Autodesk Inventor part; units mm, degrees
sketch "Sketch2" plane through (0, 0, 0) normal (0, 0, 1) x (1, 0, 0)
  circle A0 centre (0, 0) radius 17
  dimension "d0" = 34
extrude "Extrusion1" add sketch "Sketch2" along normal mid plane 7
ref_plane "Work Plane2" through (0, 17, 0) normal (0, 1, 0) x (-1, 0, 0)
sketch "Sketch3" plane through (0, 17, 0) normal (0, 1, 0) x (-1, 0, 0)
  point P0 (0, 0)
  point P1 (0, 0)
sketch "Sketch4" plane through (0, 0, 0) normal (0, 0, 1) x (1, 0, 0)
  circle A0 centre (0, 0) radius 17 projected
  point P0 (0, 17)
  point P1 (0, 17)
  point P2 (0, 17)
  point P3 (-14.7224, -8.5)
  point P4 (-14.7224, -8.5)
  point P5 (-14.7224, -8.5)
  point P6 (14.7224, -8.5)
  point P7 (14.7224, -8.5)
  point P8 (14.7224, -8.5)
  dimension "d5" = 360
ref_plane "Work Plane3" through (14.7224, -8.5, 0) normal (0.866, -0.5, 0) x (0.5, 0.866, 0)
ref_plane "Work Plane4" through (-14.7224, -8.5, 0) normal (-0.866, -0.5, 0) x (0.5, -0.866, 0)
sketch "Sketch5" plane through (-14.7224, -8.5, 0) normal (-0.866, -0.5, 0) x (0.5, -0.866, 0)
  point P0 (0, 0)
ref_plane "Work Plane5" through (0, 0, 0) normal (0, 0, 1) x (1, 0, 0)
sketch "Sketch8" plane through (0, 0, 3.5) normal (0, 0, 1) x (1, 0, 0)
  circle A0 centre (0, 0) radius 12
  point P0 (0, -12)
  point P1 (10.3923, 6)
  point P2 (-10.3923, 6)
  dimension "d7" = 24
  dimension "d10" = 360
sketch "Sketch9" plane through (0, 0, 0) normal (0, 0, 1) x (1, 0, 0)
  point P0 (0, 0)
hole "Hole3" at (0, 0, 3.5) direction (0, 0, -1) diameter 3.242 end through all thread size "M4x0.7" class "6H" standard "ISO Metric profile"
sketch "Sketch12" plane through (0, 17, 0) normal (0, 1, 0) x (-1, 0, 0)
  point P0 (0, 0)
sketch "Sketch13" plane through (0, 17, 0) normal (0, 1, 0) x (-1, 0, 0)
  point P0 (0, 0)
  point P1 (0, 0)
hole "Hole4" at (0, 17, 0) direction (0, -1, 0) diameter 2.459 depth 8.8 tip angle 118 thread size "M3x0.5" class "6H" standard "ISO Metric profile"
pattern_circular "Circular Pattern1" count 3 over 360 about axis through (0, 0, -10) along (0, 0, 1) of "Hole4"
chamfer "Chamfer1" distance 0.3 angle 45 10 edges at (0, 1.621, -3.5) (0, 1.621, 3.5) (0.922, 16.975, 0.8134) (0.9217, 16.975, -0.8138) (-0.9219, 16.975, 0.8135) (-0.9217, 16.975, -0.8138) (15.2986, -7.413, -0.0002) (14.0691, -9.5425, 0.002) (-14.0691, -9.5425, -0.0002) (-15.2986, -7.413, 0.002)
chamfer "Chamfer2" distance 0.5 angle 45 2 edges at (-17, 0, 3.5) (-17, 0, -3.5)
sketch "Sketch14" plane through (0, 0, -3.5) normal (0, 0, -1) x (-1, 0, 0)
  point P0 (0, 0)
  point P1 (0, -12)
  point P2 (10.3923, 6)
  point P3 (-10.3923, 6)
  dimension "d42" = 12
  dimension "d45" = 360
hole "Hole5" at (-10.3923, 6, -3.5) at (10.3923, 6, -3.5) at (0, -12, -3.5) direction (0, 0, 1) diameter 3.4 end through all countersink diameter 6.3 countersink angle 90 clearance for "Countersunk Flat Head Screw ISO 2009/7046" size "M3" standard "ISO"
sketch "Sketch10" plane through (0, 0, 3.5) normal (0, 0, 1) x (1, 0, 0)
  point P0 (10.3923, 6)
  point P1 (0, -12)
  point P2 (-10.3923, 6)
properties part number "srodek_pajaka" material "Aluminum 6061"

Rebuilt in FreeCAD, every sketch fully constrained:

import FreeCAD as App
import Part
import Sketcher
Q = App.Units.Quantity


def edges_at(feature, points):
    """Names of the edges that pass closest to the given points."""
    edges = feature.Shape.Edges
    near = lambda p: min(range(len(edges)), key=lambda i: edges[i].distToShape(Part.Vertex(*p))[0])
    return sorted({f"Edge{near(p) + 1}" for p in points})

doc = App.newDocument("Part")
body = doc.addObject("PartDesign::Body", "Body")

sketch1 = doc.addObject("Sketcher::SketchObject", "Sketch")
body.addObject(sketch1)
sketch1.AttachmentSupport = (doc.XY_Plane, [""])
sketch1.MapMode = "FlatFace"
sketch1.addGeometry(Part.Circle(App.Vector(0, 0, 0), App.Vector(0, 0, 1), 17), False)
sketch1.addConstraint([
    Sketcher.Constraint("Coincident", 0, 3, -1, 1),
    Sketcher.Constraint("Diameter", 0, Q("34 mm")),
])
pad1 = doc.addObject("PartDesign::Pad", "Pad")
body.addObject(pad1)
pad1.Profile = sketch1
pad1.Length = 7
pad1.Midplane = True

sketch2 = doc.addObject("Sketcher::SketchObject", "Sketch001")
body.addObject(sketch2)
sketch2.AttachmentSupport = (doc.XY_Plane, [""])
sketch2.MapMode = "FlatFace"
sketch2.AttachmentOffset = App.Placement(App.Vector(0, 0, 3.5), App.Rotation())
sketch2.addGeometry(Part.Circle(App.Vector(0, 0, 0), App.Vector(0, 0, 1), 1.6), False)
sketch2.addConstraint([
    Sketcher.Constraint("Coincident", 0, 3, -1, 1),
    Sketcher.Constraint("Diameter", 0, Q("3.242 mm")),
])
doc.recompute()
hole = doc.addObject("PartDesign::Hole", "Hole")
body.addObject(hole)
hole.Profile = sketch2
hole.ThreadType = "None"
hole.Diameter = 3.242
hole.DepthType = "ThroughAll"

sketch3 = doc.addObject("Sketcher::SketchObject", "Sketch002")
body.addObject(sketch3)
sketch3.AttachmentSupport = (doc.XZ_Plane, [""])
sketch3.MapMode = "FlatFace"
sketch3.AttachmentOffset = App.Placement(App.Vector(0, 0, -17), App.Rotation())
sketch3.addGeometry(Part.Circle(App.Vector(0, 0, 0), App.Vector(0, 0, 1), 1.2), False)
sketch3.addConstraint([
    Sketcher.Constraint("Coincident", 0, 3, -1, 1),
    Sketcher.Constraint("Diameter", 0, Q("2.459 mm")),
])
doc.recompute()
hole2 = doc.addObject("PartDesign::Hole", "Hole001")
body.addObject(hole2)
hole2.Profile = sketch3
hole2.ThreadType = "None"
hole2.Diameter = 2.459
hole2.DepthType = "Dimension"
hole2.Depth = 8.8
hole2.DrillPoint = "Angled"
hole2.DrillPointAngle = 118
hole2.Reversed = True
doc.recompute()

polarpattern = doc.addObject("PartDesign::PolarPattern", "PolarPattern")
body.addObject(polarpattern)
polarpattern.Originals = [hole2]
polarpattern.Axis = (doc.Z_Axis, [""])
polarpattern.Angle = 360
polarpattern.Occurrences = 3
body.Tip = polarpattern
doc.recompute()

chamfer = doc.addObject("PartDesign::Chamfer", "Chamfer")
body.addObject(chamfer)
chamfer.Base = (polarpattern, edges_at(polarpattern, [
    (0, 1.621, -3.5),
    (0, 1.621, 3.5),
    (0.922, 16.975, 0.813),
    (0.922, 16.975, -0.814),
    (-0.922, 16.975, 0.814),
    (-0.922, 16.975, -0.814),
    (15.299, -7.413, 0),
    (14.069, -9.543, 0.002),
    (-14.069, -9.543, 0),
    (-15.299, -7.413, 0.002),
]))
chamfer.Size = 0.3
doc.recompute()

chamfer2 = doc.addObject("PartDesign::Chamfer", "Chamfer001")
body.addObject(chamfer2)
chamfer2.Base = (chamfer, edges_at(chamfer, [(-17, 0, 3.5), (-17, 0, -3.5)]))
chamfer2.Size = 0.5

sketch4 = doc.addObject("Sketcher::SketchObject", "Sketch003")
body.addObject(sketch4)
sketch4.AttachmentSupport = (doc.XY_Plane, [""])
sketch4.MapMode = "FlatFace"
sketch4.AttachmentOffset = App.Placement(App.Vector(0, 0, -3.5), App.Rotation())
sketch4.addGeometry([
    Part.Circle(App.Vector(-10.4, 6, 0), App.Vector(0, 0, 1), 1.7),
    Part.Circle(App.Vector(10.4, 6, 0), App.Vector(0, 0, 1), 1.7),
    Part.Circle(App.Vector(0, -12, 0), App.Vector(0, 0, 1), 1.7),
], False)
sketch4.addConstraint([
    Sketcher.Constraint("Equal", 0, 1),
    Sketcher.Constraint("Equal", 1, 2),
    Sketcher.Constraint("Symmetric", 0, 3, 1, 3, -2),
    Sketcher.Constraint("PointOnObject", 2, 3, -2),
    Sketcher.Constraint("Diameter", 0, Q("3.4 mm")),
    Sketcher.Constraint("DistanceY", -1, 1, 0, 3, Q("6 mm")),
    Sketcher.Constraint("DistanceY", 2, 3, -1, 1, Q("12 mm")),
    Sketcher.Constraint("DistanceX", 0, 3, -1, 1, Q("10.3923 mm")),
])
doc.recompute()
hole3 = doc.addObject("PartDesign::Hole", "Hole002")
body.addObject(hole3)
hole3.Profile = sketch4
hole3.ThreadType = "None"
hole3.Diameter = 3.4
hole3.DepthType = "ThroughAll"
hole3.HoleCutType = "Countersink"
hole3.HoleCutDiameter = 6.3
hole3.HoleCutCountersinkAngle = 90
hole3.Reversed = True

doc.recompute()
